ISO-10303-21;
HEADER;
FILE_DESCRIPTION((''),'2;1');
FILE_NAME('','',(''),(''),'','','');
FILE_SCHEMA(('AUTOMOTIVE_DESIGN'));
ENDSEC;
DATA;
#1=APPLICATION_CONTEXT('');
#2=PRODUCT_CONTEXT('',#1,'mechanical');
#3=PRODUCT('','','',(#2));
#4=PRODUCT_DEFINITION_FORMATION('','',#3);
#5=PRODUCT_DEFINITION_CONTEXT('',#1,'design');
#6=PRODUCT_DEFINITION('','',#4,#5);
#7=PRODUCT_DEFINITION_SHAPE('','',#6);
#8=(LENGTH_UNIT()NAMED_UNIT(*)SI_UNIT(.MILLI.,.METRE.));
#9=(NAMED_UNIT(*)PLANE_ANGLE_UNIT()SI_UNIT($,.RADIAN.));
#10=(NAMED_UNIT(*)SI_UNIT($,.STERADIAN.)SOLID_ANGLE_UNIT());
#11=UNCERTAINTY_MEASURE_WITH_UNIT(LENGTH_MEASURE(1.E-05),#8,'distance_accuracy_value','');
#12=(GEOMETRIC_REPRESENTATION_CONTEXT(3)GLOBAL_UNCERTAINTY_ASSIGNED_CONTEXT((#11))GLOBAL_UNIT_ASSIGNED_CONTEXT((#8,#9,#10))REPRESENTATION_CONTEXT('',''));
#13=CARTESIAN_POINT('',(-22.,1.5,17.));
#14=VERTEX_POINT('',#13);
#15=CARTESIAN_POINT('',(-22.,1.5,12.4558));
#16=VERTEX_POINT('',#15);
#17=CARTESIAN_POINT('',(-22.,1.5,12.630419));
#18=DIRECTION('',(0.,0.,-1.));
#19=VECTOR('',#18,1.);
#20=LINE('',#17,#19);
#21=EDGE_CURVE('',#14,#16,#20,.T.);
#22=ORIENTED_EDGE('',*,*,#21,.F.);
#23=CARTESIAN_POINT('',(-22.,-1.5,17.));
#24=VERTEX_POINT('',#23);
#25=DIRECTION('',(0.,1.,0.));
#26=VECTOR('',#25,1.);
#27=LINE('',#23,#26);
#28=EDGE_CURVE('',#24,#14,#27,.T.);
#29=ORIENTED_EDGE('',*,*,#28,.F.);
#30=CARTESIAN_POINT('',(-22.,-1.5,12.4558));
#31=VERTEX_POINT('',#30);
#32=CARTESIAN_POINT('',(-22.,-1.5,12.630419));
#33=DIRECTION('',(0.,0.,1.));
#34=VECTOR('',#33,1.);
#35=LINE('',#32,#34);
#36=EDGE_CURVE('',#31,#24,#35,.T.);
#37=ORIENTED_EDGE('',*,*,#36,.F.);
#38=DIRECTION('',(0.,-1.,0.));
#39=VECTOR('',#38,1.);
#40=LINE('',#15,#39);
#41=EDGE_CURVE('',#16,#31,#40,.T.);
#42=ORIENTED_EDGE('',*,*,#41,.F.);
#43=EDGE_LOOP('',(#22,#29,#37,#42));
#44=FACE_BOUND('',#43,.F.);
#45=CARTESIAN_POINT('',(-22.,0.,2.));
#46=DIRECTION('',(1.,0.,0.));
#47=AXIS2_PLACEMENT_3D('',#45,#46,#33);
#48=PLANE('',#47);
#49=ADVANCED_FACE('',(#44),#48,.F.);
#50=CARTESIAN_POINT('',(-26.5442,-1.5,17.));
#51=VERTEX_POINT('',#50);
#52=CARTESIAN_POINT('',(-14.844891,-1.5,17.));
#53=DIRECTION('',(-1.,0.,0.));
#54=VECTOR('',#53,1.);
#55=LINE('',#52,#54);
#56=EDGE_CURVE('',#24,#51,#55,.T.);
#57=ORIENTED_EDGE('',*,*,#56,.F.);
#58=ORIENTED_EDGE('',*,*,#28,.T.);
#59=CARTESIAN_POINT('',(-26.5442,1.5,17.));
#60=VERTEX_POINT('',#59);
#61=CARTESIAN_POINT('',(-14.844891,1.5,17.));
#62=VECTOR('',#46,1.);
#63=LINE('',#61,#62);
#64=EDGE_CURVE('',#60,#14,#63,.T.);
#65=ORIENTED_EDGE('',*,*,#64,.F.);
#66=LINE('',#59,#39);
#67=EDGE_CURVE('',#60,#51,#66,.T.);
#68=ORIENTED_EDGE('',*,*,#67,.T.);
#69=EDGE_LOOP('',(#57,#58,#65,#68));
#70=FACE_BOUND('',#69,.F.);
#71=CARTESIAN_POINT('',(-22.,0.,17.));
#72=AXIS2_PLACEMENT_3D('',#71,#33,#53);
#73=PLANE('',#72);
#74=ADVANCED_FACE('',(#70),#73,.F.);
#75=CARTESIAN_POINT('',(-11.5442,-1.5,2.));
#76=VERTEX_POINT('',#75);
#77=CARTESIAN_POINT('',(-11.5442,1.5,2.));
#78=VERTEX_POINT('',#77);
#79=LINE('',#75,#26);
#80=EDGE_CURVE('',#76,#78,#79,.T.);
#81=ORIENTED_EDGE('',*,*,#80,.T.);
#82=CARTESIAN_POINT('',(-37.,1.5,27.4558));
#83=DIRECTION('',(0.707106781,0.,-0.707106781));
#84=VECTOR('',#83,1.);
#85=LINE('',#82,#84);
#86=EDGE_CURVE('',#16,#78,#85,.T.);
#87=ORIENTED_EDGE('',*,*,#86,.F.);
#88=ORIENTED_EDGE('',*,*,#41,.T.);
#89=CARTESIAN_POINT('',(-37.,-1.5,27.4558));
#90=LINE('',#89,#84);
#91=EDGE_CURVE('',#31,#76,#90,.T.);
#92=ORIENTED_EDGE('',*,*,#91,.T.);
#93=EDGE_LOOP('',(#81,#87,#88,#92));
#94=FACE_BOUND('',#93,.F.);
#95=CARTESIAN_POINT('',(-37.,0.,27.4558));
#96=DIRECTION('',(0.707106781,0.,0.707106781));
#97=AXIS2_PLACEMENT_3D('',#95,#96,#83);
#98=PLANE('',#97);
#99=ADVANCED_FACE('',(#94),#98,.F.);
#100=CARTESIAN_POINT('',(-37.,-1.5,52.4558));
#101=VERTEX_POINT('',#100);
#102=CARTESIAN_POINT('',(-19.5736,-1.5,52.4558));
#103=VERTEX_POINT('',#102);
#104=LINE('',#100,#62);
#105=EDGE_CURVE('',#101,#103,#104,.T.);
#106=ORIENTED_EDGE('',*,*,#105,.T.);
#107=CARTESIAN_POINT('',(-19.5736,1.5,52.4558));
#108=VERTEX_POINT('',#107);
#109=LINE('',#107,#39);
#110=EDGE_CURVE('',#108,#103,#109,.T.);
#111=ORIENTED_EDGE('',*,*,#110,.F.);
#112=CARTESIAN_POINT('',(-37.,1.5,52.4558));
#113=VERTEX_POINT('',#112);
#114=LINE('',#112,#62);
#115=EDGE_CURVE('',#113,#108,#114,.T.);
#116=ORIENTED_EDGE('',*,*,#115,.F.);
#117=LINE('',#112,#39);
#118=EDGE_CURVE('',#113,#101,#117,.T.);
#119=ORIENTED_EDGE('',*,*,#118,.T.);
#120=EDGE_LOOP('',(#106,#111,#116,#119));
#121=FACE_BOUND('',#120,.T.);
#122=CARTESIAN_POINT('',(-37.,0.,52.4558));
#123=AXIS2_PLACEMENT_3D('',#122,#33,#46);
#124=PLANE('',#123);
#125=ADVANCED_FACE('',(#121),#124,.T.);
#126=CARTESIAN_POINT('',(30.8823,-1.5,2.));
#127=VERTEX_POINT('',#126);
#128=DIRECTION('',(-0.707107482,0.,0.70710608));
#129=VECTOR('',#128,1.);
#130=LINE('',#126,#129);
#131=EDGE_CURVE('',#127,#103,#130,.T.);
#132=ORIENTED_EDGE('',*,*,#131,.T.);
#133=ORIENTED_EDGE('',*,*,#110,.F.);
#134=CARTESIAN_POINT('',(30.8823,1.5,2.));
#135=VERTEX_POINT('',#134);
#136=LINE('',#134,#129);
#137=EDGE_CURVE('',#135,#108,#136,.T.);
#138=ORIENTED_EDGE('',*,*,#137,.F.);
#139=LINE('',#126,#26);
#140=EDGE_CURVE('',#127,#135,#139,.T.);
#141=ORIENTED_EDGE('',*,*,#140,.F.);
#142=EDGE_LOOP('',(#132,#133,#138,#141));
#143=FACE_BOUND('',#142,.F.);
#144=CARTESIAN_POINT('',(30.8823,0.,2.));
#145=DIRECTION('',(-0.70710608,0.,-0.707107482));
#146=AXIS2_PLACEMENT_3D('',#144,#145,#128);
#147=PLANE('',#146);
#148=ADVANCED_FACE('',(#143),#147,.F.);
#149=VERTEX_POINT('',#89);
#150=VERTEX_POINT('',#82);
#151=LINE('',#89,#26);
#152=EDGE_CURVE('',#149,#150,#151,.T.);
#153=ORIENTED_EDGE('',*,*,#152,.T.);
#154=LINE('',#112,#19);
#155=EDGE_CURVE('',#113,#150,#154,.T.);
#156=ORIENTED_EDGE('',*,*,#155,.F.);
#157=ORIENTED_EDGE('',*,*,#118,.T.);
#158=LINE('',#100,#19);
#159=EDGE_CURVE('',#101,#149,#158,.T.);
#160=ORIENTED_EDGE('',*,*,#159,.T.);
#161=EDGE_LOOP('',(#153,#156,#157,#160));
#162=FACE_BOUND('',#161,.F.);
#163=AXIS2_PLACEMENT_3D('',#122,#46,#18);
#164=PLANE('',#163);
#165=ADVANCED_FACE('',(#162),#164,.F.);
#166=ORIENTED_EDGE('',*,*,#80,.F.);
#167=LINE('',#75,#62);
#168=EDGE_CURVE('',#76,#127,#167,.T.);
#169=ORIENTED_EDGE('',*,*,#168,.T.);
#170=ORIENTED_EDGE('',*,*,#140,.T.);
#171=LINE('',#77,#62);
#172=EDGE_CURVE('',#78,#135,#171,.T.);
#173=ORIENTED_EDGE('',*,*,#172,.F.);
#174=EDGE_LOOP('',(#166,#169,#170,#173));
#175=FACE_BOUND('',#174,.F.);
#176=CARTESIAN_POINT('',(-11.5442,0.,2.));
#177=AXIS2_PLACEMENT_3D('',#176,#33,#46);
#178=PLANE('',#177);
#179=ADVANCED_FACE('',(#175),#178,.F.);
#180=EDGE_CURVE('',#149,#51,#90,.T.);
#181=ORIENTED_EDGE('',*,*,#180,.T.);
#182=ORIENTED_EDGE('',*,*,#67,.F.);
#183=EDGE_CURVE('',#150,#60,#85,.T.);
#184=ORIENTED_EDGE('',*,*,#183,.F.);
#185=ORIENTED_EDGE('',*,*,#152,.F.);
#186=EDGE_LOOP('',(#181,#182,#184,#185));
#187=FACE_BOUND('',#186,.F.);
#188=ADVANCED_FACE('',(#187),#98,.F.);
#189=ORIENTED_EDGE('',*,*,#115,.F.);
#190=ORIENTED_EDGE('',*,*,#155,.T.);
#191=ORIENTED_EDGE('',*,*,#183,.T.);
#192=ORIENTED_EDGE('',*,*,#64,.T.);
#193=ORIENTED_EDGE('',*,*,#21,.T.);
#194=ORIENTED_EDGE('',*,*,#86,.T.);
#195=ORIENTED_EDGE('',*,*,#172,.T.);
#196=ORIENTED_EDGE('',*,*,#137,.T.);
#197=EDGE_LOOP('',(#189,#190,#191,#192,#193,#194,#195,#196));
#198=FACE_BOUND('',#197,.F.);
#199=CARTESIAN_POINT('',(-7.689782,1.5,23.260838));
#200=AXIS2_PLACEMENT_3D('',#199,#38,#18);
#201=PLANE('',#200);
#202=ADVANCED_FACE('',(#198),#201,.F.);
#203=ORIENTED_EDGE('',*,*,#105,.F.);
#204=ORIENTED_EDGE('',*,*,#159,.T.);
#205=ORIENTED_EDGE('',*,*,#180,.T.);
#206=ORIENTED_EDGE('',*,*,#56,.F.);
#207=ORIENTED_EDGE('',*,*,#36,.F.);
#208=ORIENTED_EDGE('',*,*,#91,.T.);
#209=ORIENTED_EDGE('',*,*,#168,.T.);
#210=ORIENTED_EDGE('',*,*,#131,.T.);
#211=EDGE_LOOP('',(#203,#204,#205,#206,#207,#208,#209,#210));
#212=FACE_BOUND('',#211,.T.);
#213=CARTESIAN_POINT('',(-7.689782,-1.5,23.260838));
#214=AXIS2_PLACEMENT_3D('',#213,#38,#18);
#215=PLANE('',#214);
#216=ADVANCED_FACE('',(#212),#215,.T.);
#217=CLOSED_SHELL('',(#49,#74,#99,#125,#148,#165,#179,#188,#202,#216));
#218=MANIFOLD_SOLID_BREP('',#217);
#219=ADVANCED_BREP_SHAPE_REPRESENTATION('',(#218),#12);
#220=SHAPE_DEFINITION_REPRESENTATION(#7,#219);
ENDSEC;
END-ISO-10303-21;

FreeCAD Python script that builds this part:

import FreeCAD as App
import Part
import Sketcher
Q = App.Units.Quantity

doc = App.newDocument("Part")
params = doc.addObject("Spreadsheet::Sheet", "Params")
for row, (alias, value) in enumerate([
    ("sketch1_height", "25 mm"),
    ("sketch1_length", "36 mm"),
    ("pad1_length", "3 mm"),
    ("sketch2_width", "15 mm"),
], start=1):
    params.set(f"A{row}", alias)
    params.set(f"B{row}", "=" + value)
    params.setAlias(f"B{row}", alias)

body = doc.addObject("PartDesign::Body", "Body")

sketch1 = body.newObject("Sketcher::SketchObject", "Sketch")
sketch1.AttachmentSupport = (doc.getObject("XZ_Plane"), [""])
sketch1.MapMode = "FlatFace"
sketch1.addGeometry([
    Part.LineSegment(App.Vector(-12, 2, 0), App.Vector(31, 2, 0)),
    Part.LineSegment(App.Vector(31, 2, 0), App.Vector(-20, 52, 0)),
    Part.LineSegment(App.Vector(-20, 52, 0), App.Vector(-37, 52, 0)),
    Part.LineSegment(App.Vector(-37, 52, 0), App.Vector(-37, 27, 0)),
    Part.LineSegment(App.Vector(-37, 27, 0), App.Vector(-12, 2, 0)),
], False)
sketch1.addConstraint([
    Sketcher.Constraint("Coincident", 0, 2, 1, 1),
    Sketcher.Constraint("Coincident", 1, 2, 2, 1),
    Sketcher.Constraint("Coincident", 2, 2, 3, 1),
    Sketcher.Constraint("Coincident", 3, 2, 4, 1),
    Sketcher.Constraint("Coincident", 4, 2, 0, 1),
    Sketcher.Constraint("Horizontal", 0),
    Sketcher.Constraint("Horizontal", 2),
    Sketcher.Constraint("Vertical", 3),
    Sketcher.Constraint("Parallel", 1, 4),
    Sketcher.Constraint("DistanceY", 3, 2, 3, 1, 25.0),
    Sketcher.Constraint("Angle", 1, Q("135 deg")),
    Sketcher.Constraint("Distance", 4, 36.0),
    Sketcher.Constraint("DistanceY", -1, 1, 0, 2, 2.0),
    Sketcher.Constraint("DistanceX", 2, 2, -1, 1, 37.0),
    Sketcher.Constraint("DistanceX", 0, 1, 0, 2, 42.4265),
])
sketch1.setExpression("Constraints[9]", "Params.sketch1_height")
sketch1.setExpression("Constraints[11]", "Params.sketch1_length")
pad1 = body.newObject("PartDesign::Pad", "Pad")
pad1.Profile = sketch1
pad1.setExpression("Length", "Params.pad1_length")
pad1.Midplane = True

sketch2 = body.newObject("Sketcher::SketchObject", "Sketch001")
sketch2.AttachmentSupport = (doc.getObject("XZ_Plane"), [""])
sketch2.MapMode = "FlatFace"
sketch2.addGeometry([
    Part.LineSegment(App.Vector(-22, 2, 0), App.Vector(-22, 17, 0)),
    Part.LineSegment(App.Vector(-22, 17, 0), App.Vector(-37, 17, 0)),
    Part.LineSegment(App.Vector(-37, 17, 0), App.Vector(-37, 2, 0)),
    Part.LineSegment(App.Vector(-37, 2, 0), App.Vector(-22, 2, 0)),
], False)
sketch2.addConstraint([
    Sketcher.Constraint("Coincident", 0, 2, 1, 1),
    Sketcher.Constraint("Coincident", 1, 2, 2, 1),
    Sketcher.Constraint("Coincident", 2, 2, 3, 1),
    Sketcher.Constraint("Coincident", 3, 2, 0, 1),
    Sketcher.Constraint("Vertical", 0),
    Sketcher.Constraint("Horizontal", 1),
    Sketcher.Constraint("Vertical", 2),
    Sketcher.Constraint("Horizontal", 3),
    Sketcher.Constraint("Equal", 3, 0),
    Sketcher.Constraint("DistanceX", 1, 2, 1, 1, 15.0),
    Sketcher.Constraint("DistanceX", 0, 2, -1, 1, 22.0),
    Sketcher.Constraint("DistanceY", -1, 1, 0, 2, 17.0),
])
sketch2.setExpression("Constraints[9]", "Params.sketch2_width")
pocket1 = body.newObject("PartDesign::Pocket", "Pocket")
pocket1.Profile = sketch2
pocket1.Type = "ThroughAll"
pocket1.Midplane = True

doc.recompute()
